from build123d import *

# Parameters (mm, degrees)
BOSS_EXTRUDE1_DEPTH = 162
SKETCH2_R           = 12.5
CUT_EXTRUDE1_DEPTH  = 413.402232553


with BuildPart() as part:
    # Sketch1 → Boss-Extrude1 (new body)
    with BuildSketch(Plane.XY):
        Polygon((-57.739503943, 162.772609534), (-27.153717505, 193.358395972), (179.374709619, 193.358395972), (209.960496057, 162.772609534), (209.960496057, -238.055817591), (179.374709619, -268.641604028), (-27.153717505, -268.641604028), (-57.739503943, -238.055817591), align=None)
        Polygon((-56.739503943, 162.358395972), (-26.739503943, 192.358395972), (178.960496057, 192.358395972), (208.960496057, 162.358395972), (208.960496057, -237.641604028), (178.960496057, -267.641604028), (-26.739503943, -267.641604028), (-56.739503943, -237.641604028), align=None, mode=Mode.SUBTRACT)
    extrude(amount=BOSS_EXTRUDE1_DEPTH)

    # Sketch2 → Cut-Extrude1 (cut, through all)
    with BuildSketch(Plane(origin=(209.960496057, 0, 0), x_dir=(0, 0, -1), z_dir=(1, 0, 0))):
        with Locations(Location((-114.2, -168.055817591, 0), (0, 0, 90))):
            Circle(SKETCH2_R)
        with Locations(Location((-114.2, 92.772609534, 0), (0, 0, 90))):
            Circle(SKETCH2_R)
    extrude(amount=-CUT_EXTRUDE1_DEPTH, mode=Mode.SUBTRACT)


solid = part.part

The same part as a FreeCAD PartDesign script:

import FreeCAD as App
import Part
import Sketcher
Q = App.Units.Quantity

doc = App.newDocument("Part")
body = doc.addObject("PartDesign::Body", "Body")

# Sketch on XY plane
sketch1 = doc.addObject("Sketcher::SketchObject", "Sketch")
body.addObject(sketch1)
sketch1.AttachmentSupport = (doc.XY_Plane, [""])
sketch1.MapMode = "FlatFace"
sketch1.addGeometry(Part.LineSegment(App.Vector(-27, 193, 0), App.Vector(-58, 163, 0)), False)
sketch1.addGeometry(Part.LineSegment(App.Vector(-58, 163, 0), App.Vector(-58, -238, 0)), False)
sketch1.addGeometry(Part.LineSegment(App.Vector(-58, -238, 0), App.Vector(-27, -269, 0)), False)
sketch1.addGeometry(Part.LineSegment(App.Vector(-27, -269, 0), App.Vector(179, -269, 0)), False)
sketch1.addGeometry(Part.LineSegment(App.Vector(179, -269, 0), App.Vector(210, -238, 0)), False)
sketch1.addGeometry(Part.LineSegment(App.Vector(210, -238, 0), App.Vector(210, 163, 0)), False)
sketch1.addGeometry(Part.LineSegment(App.Vector(210, 163, 0), App.Vector(179, 193, 0)), False)
sketch1.addGeometry(Part.LineSegment(App.Vector(179, 193, 0), App.Vector(-27, 193, 0)), False)
sketch1.addGeometry(Part.LineSegment(App.Vector(-57, 162, 0), App.Vector(-27, 192, 0)), False)
sketch1.addGeometry(Part.LineSegment(App.Vector(-27, 192, 0), App.Vector(179, 192, 0)), False)
sketch1.addGeometry(Part.LineSegment(App.Vector(179, 192, 0), App.Vector(209, 162, 0)), False)
sketch1.addGeometry(Part.LineSegment(App.Vector(209, 162, 0), App.Vector(209, -238, 0)), False)
sketch1.addGeometry(Part.LineSegment(App.Vector(209, -238, 0), App.Vector(179, -268, 0)), False)
sketch1.addGeometry(Part.LineSegment(App.Vector(179, -268, 0), App.Vector(-27, -268, 0)), False)
sketch1.addGeometry(Part.LineSegment(App.Vector(-27, -268, 0), App.Vector(-57, -238, 0)), False)
sketch1.addGeometry(Part.LineSegment(App.Vector(-57, -238, 0), App.Vector(-57, 162, 0)), False)
sketch1.addConstraint(Sketcher.Constraint("Coincident", 0, 2, 1, 1))
sketch1.addConstraint(Sketcher.Constraint("Coincident", 1, 2, 2, 1))
sketch1.addConstraint(Sketcher.Constraint("Coincident", 2, 2, 3, 1))
sketch1.addConstraint(Sketcher.Constraint("Coincident", 3, 2, 4, 1))
sketch1.addConstraint(Sketcher.Constraint("Coincident", 4, 2, 5, 1))
sketch1.addConstraint(Sketcher.Constraint("Coincident", 5, 2, 6, 1))
sketch1.addConstraint(Sketcher.Constraint("Coincident", 6, 2, 7, 1))
sketch1.addConstraint(Sketcher.Constraint("Coincident", 7, 2, 0, 1))
sketch1.addConstraint(Sketcher.Constraint("Coincident", 8, 2, 9, 1))
sketch1.addConstraint(Sketcher.Constraint("Coincident", 9, 2, 10, 1))
sketch1.addConstraint(Sketcher.Constraint("Coincident", 10, 2, 11, 1))
sketch1.addConstraint(Sketcher.Constraint("Coincident", 11, 2, 12, 1))
sketch1.addConstraint(Sketcher.Constraint("Coincident", 12, 2, 13, 1))
sketch1.addConstraint(Sketcher.Constraint("Coincident", 13, 2, 14, 1))
sketch1.addConstraint(Sketcher.Constraint("Coincident", 14, 2, 15, 1))
sketch1.addConstraint(Sketcher.Constraint("Coincident", 15, 2, 8, 1))
sketch1.addConstraint(Sketcher.Constraint("Vertical", 1))
sketch1.addConstraint(Sketcher.Constraint("Horizontal", 3))
sketch1.addConstraint(Sketcher.Constraint("Vertical", 5))
sketch1.addConstraint(Sketcher.Constraint("Horizontal", 7))
sketch1.addConstraint(Sketcher.Constraint("Horizontal", 9))
sketch1.addConstraint(Sketcher.Constraint("Vertical", 11))
sketch1.addConstraint(Sketcher.Constraint("Horizontal", 13))
sketch1.addConstraint(Sketcher.Constraint("Vertical", 15))
sketch1.addConstraint(Sketcher.Constraint("Perpendicular", 0, 2))
sketch1.addConstraint(Sketcher.Constraint("Perpendicular", 2, 4))
sketch1.addConstraint(Sketcher.Constraint("Perpendicular", 4, 6))
sketch1.addConstraint(Sketcher.Constraint("Perpendicular", 6, 8))
sketch1.addConstraint(Sketcher.Constraint("Perpendicular", 8, 10))
sketch1.addConstraint(Sketcher.Constraint("Perpendicular", 10, 12))
sketch1.addConstraint(Sketcher.Constraint("Perpendicular", 12, 14))
sketch1.addConstraint(Sketcher.Constraint("Horizontal", 1, 2, 4, 2))
sketch1.addConstraint(Sketcher.Constraint("Horizontal", 0, 2, 5, 2))
sketch1.addConstraint(Sketcher.Constraint("Horizontal", 11, 2, 14, 2))
sketch1.addConstraint(Sketcher.Constraint("Horizontal", 10, 2, 15, 2))
sketch1.addConstraint(Sketcher.Constraint("Vertical", 3, 2, 6, 2))
sketch1.addConstraint(Sketcher.Constraint("Vertical", 2, 2, 7, 2))
sketch1.addConstraint(Sketcher.Constraint("Vertical", 9, 2, 12, 2))
sketch1.addConstraint(Sketcher.Constraint("DistanceY", 11, 2, 11, 1, Q("400 mm")))
sketch1.addConstraint(Sketcher.Constraint("DistanceX", 9, 1, 9, 2, Q("205.7 mm")))
sketch1.addConstraint(Sketcher.Constraint("DistanceY", 3, 2, 6, 2, Q("462 mm")))
sketch1.addConstraint(Sketcher.Constraint("DistanceY", 8, 2, 7, 2, Q("1 mm")))
sketch1.addConstraint(Sketcher.Constraint("DistanceX", 0, 2, 8, 2, Q("31 mm")))
sketch1.addConstraint(Sketcher.Constraint("DistanceX", 9, 2, 5, 2, Q("31 mm")))
sketch1.addConstraint(Sketcher.Constraint("DistanceX", 10, 2, 5, 2, Q("1 mm")))
sketch1.addConstraint(Sketcher.Constraint("DistanceX", 3, 1, 3, 2, Q("206.528427 mm")))
sketch1.addConstraint(Sketcher.Constraint("DistanceY", -1, 1, 0, 2, Q("162.77261 mm")))
sketch1.addConstraint(Sketcher.Constraint("DistanceX", -1, 1, 3, 2, Q("179.37471 mm")))
pad1 = doc.addObject("PartDesign::Pad", "Pad")
body.addObject(pad1)
pad1.Profile = sketch1
pad1.Length = 162

# Sketch on YZ plane
sketch2 = doc.addObject("Sketcher::SketchObject", "Sketch001")
body.addObject(sketch2)
sketch2.AttachmentSupport = (doc.YZ_Plane, [""])
sketch2.MapMode = "FlatFace"
sketch2.AttachmentOffset = App.Placement(App.Vector(0, 0, 209.960496), App.Rotation())
sketch2.addGeometry(Part.Circle(App.Vector(-168, 114, 0), App.Vector(0, 0, 1), 12), False)
sketch2.addGeometry(Part.Circle(App.Vector(93, 114, 0), App.Vector(0, 0, 1), 12), False)
sketch2.addConstraint(Sketcher.Constraint("Equal", 0, 1))
sketch2.addConstraint(Sketcher.Constraint("Horizontal", 0, 3, 1, 3))
sketch2.addConstraint(Sketcher.Constraint("Diameter", 0, Q("25 mm")))
sketch2.addConstraint(Sketcher.Constraint("DistanceY", -1, 1, 0, 3, Q("114.2 mm")))
sketch2.addConstraint(Sketcher.Constraint("DistanceX", -1, 1, 1, 3, Q("92.77261 mm")))
sketch2.addConstraint(Sketcher.Constraint("DistanceX", 0, 3, -1, 1, Q("168.055818 mm")))
pocket1 = doc.addObject("PartDesign::Pocket", "Pocket")
body.addObject(pocket1)
pocket1.Profile = sketch2
pocket1.Type = "ThroughAll"

doc.recompute()
